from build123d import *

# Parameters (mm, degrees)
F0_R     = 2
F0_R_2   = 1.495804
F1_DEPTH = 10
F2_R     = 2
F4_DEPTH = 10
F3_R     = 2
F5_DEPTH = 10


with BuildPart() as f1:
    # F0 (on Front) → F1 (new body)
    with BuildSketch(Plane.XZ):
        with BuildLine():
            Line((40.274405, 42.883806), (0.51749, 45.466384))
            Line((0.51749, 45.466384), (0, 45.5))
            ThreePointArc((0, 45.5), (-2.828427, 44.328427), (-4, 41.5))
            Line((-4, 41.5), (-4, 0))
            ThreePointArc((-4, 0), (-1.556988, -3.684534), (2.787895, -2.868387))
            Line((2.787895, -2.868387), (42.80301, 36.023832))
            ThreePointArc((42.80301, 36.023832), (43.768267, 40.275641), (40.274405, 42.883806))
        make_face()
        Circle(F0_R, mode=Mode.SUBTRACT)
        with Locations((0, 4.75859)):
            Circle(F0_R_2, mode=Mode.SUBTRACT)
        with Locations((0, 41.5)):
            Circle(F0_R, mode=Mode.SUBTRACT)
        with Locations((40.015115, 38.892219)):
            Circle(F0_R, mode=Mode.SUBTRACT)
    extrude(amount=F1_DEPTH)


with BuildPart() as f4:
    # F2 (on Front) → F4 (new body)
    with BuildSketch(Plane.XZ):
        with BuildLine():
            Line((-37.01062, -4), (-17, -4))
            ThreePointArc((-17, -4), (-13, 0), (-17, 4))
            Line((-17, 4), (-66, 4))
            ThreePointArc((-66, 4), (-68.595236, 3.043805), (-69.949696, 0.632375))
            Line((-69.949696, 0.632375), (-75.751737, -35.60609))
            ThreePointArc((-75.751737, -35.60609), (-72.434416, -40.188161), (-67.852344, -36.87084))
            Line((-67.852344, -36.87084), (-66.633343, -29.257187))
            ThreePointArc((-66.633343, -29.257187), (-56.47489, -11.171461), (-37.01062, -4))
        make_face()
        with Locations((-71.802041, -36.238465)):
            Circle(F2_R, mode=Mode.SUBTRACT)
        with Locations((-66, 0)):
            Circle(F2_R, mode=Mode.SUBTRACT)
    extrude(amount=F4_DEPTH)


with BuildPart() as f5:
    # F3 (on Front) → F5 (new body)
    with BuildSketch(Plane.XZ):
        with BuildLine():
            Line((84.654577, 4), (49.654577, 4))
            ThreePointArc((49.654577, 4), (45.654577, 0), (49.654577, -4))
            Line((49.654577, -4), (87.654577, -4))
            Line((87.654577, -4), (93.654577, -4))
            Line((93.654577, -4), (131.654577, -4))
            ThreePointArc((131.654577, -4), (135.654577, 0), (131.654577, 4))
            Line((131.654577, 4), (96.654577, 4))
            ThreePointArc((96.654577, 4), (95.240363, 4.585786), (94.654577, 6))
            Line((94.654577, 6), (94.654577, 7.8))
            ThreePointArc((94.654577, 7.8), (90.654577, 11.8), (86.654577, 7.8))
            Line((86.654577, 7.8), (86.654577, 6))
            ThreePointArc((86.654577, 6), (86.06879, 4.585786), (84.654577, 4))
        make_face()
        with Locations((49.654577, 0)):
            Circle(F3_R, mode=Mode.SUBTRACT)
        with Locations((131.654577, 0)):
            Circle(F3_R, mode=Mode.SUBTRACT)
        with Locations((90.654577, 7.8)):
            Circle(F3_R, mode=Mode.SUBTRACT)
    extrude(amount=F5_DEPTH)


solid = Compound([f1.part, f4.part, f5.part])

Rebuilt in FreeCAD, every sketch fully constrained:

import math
import FreeCAD as App
import Part
import Sketcher
from FreeCAD import Vector
Q = App.Units.Quantity

doc = App.newDocument("Part")
body = doc.addObject("PartDesign::Body", "Body")

sketch1 = body.newObject("Sketcher::SketchObject", "Sketch")
sketch1.AttachmentSupport = (doc.getObject("XZ_Plane"), [""])
sketch1.MapMode = "FlatFace"
sketch1.addGeometry(Part.LineSegment(Vector(40.3, 42.9, 0), Vector(0.5, 45.5, 0)), False)
sketch1.addGeometry(Part.LineSegment(Vector(0.5, 45.5, 0), Vector(0, 45.5, 0)), False)
sketch1.addGeometry(Part.ArcOfCircle(Part.Circle(Vector(0, 41.5, 0), Vector(0, 0, 1), 4), math.radians(90), math.radians(180)), False)
sketch1.addGeometry(Part.LineSegment(Vector(-4, 41.5, 0), Vector(-4, 0, 0)), False)
sketch1.addGeometry(Part.ArcOfCircle(Part.Circle(Vector(0, 0, 0), Vector(0, 0, 1), 4), math.radians(180), math.radians(314)), False)
sketch1.addGeometry(Part.LineSegment(Vector(2.8, -2.9, 0), Vector(42.8, 36, 0)), False)
sketch1.addGeometry(Part.ArcOfCircle(Part.Circle(Vector(40, 38.9, 0), Vector(0, 0, 1), 4), math.radians(-46), math.radians(86)), False)
sketch1.addGeometry(Part.Circle(Vector(0, 0, 0), Vector(0, 0, 1), 2), False)
sketch1.addGeometry(Part.Circle(Vector(0, 4.8, 0), Vector(0, 0, 1), 1.5), False)
sketch1.addGeometry(Part.Circle(Vector(0, 41.5, 0), Vector(0, 0, 1), 2), False)
sketch1.addGeometry(Part.Circle(Vector(40, 38.9, 0), Vector(0, 0, 1), 2), False)
sketch1.addConstraint(Sketcher.Constraint("Coincident", 0, 2, 1, 1))
sketch1.addConstraint(Sketcher.Constraint("Coincident", 1, 2, 2, 1))
sketch1.addConstraint(Sketcher.Constraint("Tangent", 2, 2, 3, 1))
sketch1.addConstraint(Sketcher.Constraint("Tangent", 3, 2, 4, 1))
sketch1.addConstraint(Sketcher.Constraint("Tangent", 4, 2, 5, 1))
sketch1.addConstraint(Sketcher.Constraint("Tangent", 5, 2, 6, 1))
sketch1.addConstraint(Sketcher.Constraint("Tangent", 6, 2, 0, 1))
sketch1.addConstraint(Sketcher.Constraint("Vertical", 3))
sketch1.addConstraint(Sketcher.Constraint("Coincident", 4, 3, -1, 1))
sketch1.addConstraint(Sketcher.Constraint("Coincident", 7, 3, -1, 1))
sketch1.addConstraint(Sketcher.Constraint("Coincident", 9, 3, 2, 3))
sketch1.addConstraint(Sketcher.Constraint("Coincident", 10, 3, 6, 3))
sketch1.addConstraint(Sketcher.Constraint("Equal", 2, 4))
sketch1.addConstraint(Sketcher.Constraint("Equal", 4, 6))
sketch1.addConstraint(Sketcher.Constraint("Equal", 7, 9))
sketch1.addConstraint(Sketcher.Constraint("Equal", 9, 10))
sketch1.addConstraint(Sketcher.Constraint("PointOnObject", 8, 3, -2))
sketch1.addConstraint(Sketcher.Constraint("PointOnObject", 1, 2, -2))
sketch1.addConstraint(Sketcher.Constraint("Parallel", 0, 1))
sketch1.addConstraint(Sketcher.Constraint("Diameter", 7, Q("4 mm")))
sketch1.addConstraint(Sketcher.Constraint("Radius", 2, Q("4 mm")))
sketch1.addConstraint(Sketcher.Constraint("DistanceY", 3, 2, 3, 1, Q("41.5 mm")))
sketch1.addConstraint(Sketcher.Constraint("Diameter", 8, Q("2.991608 mm")))
sketch1.addConstraint(Sketcher.Constraint("Distance", 1, Q("0.518581 mm")))
sketch1.addConstraint(Sketcher.Constraint("Distance", 5, Q("55.80156 mm")))
sketch1.addConstraint(Sketcher.Constraint("DistanceY", -1, 1, 6, 3, Q("38.892219 mm")))
sketch1.addConstraint(Sketcher.Constraint("DistanceY", -1, 1, 8, 3, Q("4.75859 mm")))
pad1 = body.newObject("PartDesign::Pad", "Pad")
pad1.Profile = sketch1
pad1.Length = 10
body2 = doc.addObject("PartDesign::Body", "Body001")

sketch2 = body2.newObject("Sketcher::SketchObject", "Sketch001")
sketch2.AttachmentSupport = (doc.getObject("XZ_Plane001"), [""])
sketch2.MapMode = "FlatFace"
sketch2.addGeometry(Part.LineSegment(Vector(-37, -4, 0), Vector(-17, -4, 0)), False)
sketch2.addGeometry(Part.ArcOfCircle(Part.Circle(Vector(-17, 0, 0), Vector(0, 0, 1), 4), math.radians(-90), math.radians(90)), False)
sketch2.addGeometry(Part.LineSegment(Vector(-17, 4, 0), Vector(-66, 4, 0)), False)
sketch2.addGeometry(Part.ArcOfCircle(Part.Circle(Vector(-66, 0, 0), Vector(0, 0, 1), 4), math.radians(90), math.radians(171)), False)
sketch2.addGeometry(Part.LineSegment(Vector(-69.9, 0.6, 0), Vector(-75.8, -35.6, 0)), False)
sketch2.addGeometry(Part.ArcOfCircle(Part.Circle(Vector(-71.8, -36.2, 0), Vector(0, 0, 1), 4), math.radians(171), math.radians(351)), False)
sketch2.addGeometry(Part.LineSegment(Vector(-67.9, -36.9, 0), Vector(-66.6, -29.3, 0)), False)
sketch2.addGeometry(Part.ArcOfCircle(Part.Circle(Vector(-37, -34, 0), Vector(0, 0, 1), 30), math.radians(90), math.radians(171)), False)
sketch2.addGeometry(Part.Circle(Vector(-71.8, -36.2, 0), Vector(0, 0, 1), 2), False)
sketch2.addGeometry(Part.Circle(Vector(-66, 0, 0), Vector(0, 0, 1), 2), False)
sketch2.addConstraint(Sketcher.Constraint("Tangent", 0, 2, 1, 1))
sketch2.addConstraint(Sketcher.Constraint("Tangent", 1, 2, 2, 1))
sketch2.addConstraint(Sketcher.Constraint("Tangent", 2, 2, 3, 1))
sketch2.addConstraint(Sketcher.Constraint("Tangent", 3, 2, 4, 1))
sketch2.addConstraint(Sketcher.Constraint("Tangent", 4, 2, 5, 1))
sketch2.addConstraint(Sketcher.Constraint("Tangent", 5, 2, 6, 1))
sketch2.addConstraint(Sketcher.Constraint("Tangent", 6, 2, 7, 2))
sketch2.addConstraint(Sketcher.Constraint("Tangent", 7, 1, 0, 1))
sketch2.addConstraint(Sketcher.Constraint("Horizontal", 0))
sketch2.addConstraint(Sketcher.Constraint("Horizontal", 2))
sketch2.addConstraint(Sketcher.Constraint("Coincident", 8, 3, 5, 3))
sketch2.addConstraint(Sketcher.Constraint("Coincident", 9, 3, 3, 3))
sketch2.addConstraint(Sketcher.Constraint("Equal", 1, 3))
sketch2.addConstraint(Sketcher.Constraint("Equal", 3, 5))
sketch2.addConstraint(Sketcher.Constraint("Equal", 8, 9))
sketch2.addConstraint(Sketcher.Constraint("PointOnObject", 1, 3, -1))
sketch2.addConstraint(Sketcher.Constraint("Parallel", 4, 6))
sketch2.addConstraint(Sketcher.Constraint("Diameter", 8, Q("4 mm")))
sketch2.addConstraint(Sketcher.Constraint("Radius", 1, Q("4 mm")))
sketch2.addConstraint(Sketcher.Constraint("Radius", 7, Q("30 mm")))
sketch2.addConstraint(Sketcher.Constraint("DistanceX", 2, 2, 2, 1, Q("49 mm")))
sketch2.addConstraint(Sketcher.Constraint("DistanceX", 1, 3, -1, 1, Q("17 mm")))
sketch2.addConstraint(Sketcher.Constraint("Distance", 4, Q("36.7 mm")))
sketch2.addConstraint(Sketcher.Constraint("DistanceX", 5, 2, 6, 2, Q("1.219001 mm")))
pad2 = body2.newObject("PartDesign::Pad", "Pad001")
pad2.Profile = sketch2
pad2.Length = 10
body3 = doc.addObject("PartDesign::Body", "Body002")

sketch3 = body3.newObject("Sketcher::SketchObject", "Sketch002")
sketch3.AttachmentSupport = (doc.getObject("XZ_Plane002"), [""])
sketch3.MapMode = "FlatFace"
sketch3.addGeometry(Part.LineSegment(Vector(84.7, 4, 0), Vector(49.7, 4, 0)), False)
sketch3.addGeometry(Part.ArcOfCircle(Part.Circle(Vector(49.7, 0, 0), Vector(0, 0, 1), 4), math.radians(90), math.radians(270)), False)
sketch3.addGeometry(Part.LineSegment(Vector(49.7, -4, 0), Vector(131.7, -4, 0)), False)
sketch3.addGeometry(Part.ArcOfCircle(Part.Circle(Vector(131.7, 0, 0), Vector(0, 0, 1), 4), math.radians(-90), math.radians(90)), False)
sketch3.addGeometry(Part.LineSegment(Vector(131.7, 4, 0), Vector(96.7, 4, 0)), False)
sketch3.addGeometry(Part.ArcOfCircle(Part.Circle(Vector(96.7, 6, 0), Vector(0, 0, 1), 2), math.radians(180), math.radians(270)), False)
sketch3.addGeometry(Part.LineSegment(Vector(94.7, 6, 0), Vector(94.7, 7.8, 0)), False)
sketch3.addGeometry(Part.ArcOfCircle(Part.Circle(Vector(90.7, 7.8, 0), Vector(0, 0, 1), 4), math.radians(0), math.radians(180)), False)
sketch3.addGeometry(Part.LineSegment(Vector(86.7, 7.8, 0), Vector(86.7, 6, 0)), False)
sketch3.addGeometry(Part.ArcOfCircle(Part.Circle(Vector(84.7, 6, 0), Vector(0, 0, 1), 2), math.radians(-90), math.radians(0)), False)
sketch3.addGeometry(Part.Circle(Vector(49.7, 0, 0), Vector(0, 0, 1), 2), False)
sketch3.addGeometry(Part.Circle(Vector(131.7, 0, 0), Vector(0, 0, 1), 2), False)
sketch3.addGeometry(Part.Circle(Vector(90.7, 7.8, 0), Vector(0, 0, 1), 2), False)
sketch3.addConstraint(Sketcher.Constraint("Tangent", 0, 2, 1, 1))
sketch3.addConstraint(Sketcher.Constraint("Tangent", 1, 2, 2, 1))
sketch3.addConstraint(Sketcher.Constraint("Tangent", 2, 2, 3, 1))
sketch3.addConstraint(Sketcher.Constraint("Tangent", 3, 2, 4, 1))
sketch3.addConstraint(Sketcher.Constraint("Tangent", 4, 2, 5, 2))
sketch3.addConstraint(Sketcher.Constraint("Tangent", 5, 1, 6, 1))
sketch3.addConstraint(Sketcher.Constraint("Tangent", 6, 2, 7, 1))
sketch3.addConstraint(Sketcher.Constraint("Tangent", 7, 2, 8, 1))
sketch3.addConstraint(Sketcher.Constraint("Tangent", 8, 2, 9, 2))
sketch3.addConstraint(Sketcher.Constraint("Tangent", 9, 1, 0, 1))
sketch3.addConstraint(Sketcher.Constraint("Horizontal", 0))
sketch3.addConstraint(Sketcher.Constraint("Horizontal", 2))
sketch3.addConstraint(Sketcher.Constraint("Horizontal", 4))
sketch3.addConstraint(Sketcher.Constraint("Vertical", 6))
sketch3.addConstraint(Sketcher.Constraint("Vertical", 8))
sketch3.addConstraint(Sketcher.Constraint("Coincident", 10, 3, 1, 3))
sketch3.addConstraint(Sketcher.Constraint("Coincident", 11, 3, 3, 3))
sketch3.addConstraint(Sketcher.Constraint("Coincident", 12, 3, 7, 3))
sketch3.addConstraint(Sketcher.Constraint("Equal", 1, 3))
sketch3.addConstraint(Sketcher.Constraint("Equal", 3, 7))
sketch3.addConstraint(Sketcher.Constraint("Equal", 5, 9))
sketch3.addConstraint(Sketcher.Constraint("Equal", 9, 10))
sketch3.addConstraint(Sketcher.Constraint("Equal", 10, 11))
sketch3.addConstraint(Sketcher.Constraint("Equal", 11, 12))
sketch3.addConstraint(Sketcher.Constraint("PointOnObject", 1, 3, -1))
sketch3.addConstraint(Sketcher.Constraint("Equal", 0, 4))
sketch3.addConstraint(Sketcher.Constraint("Diameter", 10, Q("4 mm")))
sketch3.addConstraint(Sketcher.Constraint("Radius", 1, Q("4 mm")))
sketch3.addConstraint(Sketcher.Constraint("DistanceX", 0, 2, 0, 1, Q("35 mm")))
sketch3.addConstraint(Sketcher.Constraint("DistanceY", 6, 1, 6, 2, Q("1.8 mm")))
sketch3.addConstraint(Sketcher.Constraint("DistanceX", -1, 1, 1, 3, Q("49.654577 mm")))
pad3 = body3.newObject("PartDesign::Pad", "Pad002")
pad3.Profile = sketch3
pad3.Length = 10

doc.recompute()
